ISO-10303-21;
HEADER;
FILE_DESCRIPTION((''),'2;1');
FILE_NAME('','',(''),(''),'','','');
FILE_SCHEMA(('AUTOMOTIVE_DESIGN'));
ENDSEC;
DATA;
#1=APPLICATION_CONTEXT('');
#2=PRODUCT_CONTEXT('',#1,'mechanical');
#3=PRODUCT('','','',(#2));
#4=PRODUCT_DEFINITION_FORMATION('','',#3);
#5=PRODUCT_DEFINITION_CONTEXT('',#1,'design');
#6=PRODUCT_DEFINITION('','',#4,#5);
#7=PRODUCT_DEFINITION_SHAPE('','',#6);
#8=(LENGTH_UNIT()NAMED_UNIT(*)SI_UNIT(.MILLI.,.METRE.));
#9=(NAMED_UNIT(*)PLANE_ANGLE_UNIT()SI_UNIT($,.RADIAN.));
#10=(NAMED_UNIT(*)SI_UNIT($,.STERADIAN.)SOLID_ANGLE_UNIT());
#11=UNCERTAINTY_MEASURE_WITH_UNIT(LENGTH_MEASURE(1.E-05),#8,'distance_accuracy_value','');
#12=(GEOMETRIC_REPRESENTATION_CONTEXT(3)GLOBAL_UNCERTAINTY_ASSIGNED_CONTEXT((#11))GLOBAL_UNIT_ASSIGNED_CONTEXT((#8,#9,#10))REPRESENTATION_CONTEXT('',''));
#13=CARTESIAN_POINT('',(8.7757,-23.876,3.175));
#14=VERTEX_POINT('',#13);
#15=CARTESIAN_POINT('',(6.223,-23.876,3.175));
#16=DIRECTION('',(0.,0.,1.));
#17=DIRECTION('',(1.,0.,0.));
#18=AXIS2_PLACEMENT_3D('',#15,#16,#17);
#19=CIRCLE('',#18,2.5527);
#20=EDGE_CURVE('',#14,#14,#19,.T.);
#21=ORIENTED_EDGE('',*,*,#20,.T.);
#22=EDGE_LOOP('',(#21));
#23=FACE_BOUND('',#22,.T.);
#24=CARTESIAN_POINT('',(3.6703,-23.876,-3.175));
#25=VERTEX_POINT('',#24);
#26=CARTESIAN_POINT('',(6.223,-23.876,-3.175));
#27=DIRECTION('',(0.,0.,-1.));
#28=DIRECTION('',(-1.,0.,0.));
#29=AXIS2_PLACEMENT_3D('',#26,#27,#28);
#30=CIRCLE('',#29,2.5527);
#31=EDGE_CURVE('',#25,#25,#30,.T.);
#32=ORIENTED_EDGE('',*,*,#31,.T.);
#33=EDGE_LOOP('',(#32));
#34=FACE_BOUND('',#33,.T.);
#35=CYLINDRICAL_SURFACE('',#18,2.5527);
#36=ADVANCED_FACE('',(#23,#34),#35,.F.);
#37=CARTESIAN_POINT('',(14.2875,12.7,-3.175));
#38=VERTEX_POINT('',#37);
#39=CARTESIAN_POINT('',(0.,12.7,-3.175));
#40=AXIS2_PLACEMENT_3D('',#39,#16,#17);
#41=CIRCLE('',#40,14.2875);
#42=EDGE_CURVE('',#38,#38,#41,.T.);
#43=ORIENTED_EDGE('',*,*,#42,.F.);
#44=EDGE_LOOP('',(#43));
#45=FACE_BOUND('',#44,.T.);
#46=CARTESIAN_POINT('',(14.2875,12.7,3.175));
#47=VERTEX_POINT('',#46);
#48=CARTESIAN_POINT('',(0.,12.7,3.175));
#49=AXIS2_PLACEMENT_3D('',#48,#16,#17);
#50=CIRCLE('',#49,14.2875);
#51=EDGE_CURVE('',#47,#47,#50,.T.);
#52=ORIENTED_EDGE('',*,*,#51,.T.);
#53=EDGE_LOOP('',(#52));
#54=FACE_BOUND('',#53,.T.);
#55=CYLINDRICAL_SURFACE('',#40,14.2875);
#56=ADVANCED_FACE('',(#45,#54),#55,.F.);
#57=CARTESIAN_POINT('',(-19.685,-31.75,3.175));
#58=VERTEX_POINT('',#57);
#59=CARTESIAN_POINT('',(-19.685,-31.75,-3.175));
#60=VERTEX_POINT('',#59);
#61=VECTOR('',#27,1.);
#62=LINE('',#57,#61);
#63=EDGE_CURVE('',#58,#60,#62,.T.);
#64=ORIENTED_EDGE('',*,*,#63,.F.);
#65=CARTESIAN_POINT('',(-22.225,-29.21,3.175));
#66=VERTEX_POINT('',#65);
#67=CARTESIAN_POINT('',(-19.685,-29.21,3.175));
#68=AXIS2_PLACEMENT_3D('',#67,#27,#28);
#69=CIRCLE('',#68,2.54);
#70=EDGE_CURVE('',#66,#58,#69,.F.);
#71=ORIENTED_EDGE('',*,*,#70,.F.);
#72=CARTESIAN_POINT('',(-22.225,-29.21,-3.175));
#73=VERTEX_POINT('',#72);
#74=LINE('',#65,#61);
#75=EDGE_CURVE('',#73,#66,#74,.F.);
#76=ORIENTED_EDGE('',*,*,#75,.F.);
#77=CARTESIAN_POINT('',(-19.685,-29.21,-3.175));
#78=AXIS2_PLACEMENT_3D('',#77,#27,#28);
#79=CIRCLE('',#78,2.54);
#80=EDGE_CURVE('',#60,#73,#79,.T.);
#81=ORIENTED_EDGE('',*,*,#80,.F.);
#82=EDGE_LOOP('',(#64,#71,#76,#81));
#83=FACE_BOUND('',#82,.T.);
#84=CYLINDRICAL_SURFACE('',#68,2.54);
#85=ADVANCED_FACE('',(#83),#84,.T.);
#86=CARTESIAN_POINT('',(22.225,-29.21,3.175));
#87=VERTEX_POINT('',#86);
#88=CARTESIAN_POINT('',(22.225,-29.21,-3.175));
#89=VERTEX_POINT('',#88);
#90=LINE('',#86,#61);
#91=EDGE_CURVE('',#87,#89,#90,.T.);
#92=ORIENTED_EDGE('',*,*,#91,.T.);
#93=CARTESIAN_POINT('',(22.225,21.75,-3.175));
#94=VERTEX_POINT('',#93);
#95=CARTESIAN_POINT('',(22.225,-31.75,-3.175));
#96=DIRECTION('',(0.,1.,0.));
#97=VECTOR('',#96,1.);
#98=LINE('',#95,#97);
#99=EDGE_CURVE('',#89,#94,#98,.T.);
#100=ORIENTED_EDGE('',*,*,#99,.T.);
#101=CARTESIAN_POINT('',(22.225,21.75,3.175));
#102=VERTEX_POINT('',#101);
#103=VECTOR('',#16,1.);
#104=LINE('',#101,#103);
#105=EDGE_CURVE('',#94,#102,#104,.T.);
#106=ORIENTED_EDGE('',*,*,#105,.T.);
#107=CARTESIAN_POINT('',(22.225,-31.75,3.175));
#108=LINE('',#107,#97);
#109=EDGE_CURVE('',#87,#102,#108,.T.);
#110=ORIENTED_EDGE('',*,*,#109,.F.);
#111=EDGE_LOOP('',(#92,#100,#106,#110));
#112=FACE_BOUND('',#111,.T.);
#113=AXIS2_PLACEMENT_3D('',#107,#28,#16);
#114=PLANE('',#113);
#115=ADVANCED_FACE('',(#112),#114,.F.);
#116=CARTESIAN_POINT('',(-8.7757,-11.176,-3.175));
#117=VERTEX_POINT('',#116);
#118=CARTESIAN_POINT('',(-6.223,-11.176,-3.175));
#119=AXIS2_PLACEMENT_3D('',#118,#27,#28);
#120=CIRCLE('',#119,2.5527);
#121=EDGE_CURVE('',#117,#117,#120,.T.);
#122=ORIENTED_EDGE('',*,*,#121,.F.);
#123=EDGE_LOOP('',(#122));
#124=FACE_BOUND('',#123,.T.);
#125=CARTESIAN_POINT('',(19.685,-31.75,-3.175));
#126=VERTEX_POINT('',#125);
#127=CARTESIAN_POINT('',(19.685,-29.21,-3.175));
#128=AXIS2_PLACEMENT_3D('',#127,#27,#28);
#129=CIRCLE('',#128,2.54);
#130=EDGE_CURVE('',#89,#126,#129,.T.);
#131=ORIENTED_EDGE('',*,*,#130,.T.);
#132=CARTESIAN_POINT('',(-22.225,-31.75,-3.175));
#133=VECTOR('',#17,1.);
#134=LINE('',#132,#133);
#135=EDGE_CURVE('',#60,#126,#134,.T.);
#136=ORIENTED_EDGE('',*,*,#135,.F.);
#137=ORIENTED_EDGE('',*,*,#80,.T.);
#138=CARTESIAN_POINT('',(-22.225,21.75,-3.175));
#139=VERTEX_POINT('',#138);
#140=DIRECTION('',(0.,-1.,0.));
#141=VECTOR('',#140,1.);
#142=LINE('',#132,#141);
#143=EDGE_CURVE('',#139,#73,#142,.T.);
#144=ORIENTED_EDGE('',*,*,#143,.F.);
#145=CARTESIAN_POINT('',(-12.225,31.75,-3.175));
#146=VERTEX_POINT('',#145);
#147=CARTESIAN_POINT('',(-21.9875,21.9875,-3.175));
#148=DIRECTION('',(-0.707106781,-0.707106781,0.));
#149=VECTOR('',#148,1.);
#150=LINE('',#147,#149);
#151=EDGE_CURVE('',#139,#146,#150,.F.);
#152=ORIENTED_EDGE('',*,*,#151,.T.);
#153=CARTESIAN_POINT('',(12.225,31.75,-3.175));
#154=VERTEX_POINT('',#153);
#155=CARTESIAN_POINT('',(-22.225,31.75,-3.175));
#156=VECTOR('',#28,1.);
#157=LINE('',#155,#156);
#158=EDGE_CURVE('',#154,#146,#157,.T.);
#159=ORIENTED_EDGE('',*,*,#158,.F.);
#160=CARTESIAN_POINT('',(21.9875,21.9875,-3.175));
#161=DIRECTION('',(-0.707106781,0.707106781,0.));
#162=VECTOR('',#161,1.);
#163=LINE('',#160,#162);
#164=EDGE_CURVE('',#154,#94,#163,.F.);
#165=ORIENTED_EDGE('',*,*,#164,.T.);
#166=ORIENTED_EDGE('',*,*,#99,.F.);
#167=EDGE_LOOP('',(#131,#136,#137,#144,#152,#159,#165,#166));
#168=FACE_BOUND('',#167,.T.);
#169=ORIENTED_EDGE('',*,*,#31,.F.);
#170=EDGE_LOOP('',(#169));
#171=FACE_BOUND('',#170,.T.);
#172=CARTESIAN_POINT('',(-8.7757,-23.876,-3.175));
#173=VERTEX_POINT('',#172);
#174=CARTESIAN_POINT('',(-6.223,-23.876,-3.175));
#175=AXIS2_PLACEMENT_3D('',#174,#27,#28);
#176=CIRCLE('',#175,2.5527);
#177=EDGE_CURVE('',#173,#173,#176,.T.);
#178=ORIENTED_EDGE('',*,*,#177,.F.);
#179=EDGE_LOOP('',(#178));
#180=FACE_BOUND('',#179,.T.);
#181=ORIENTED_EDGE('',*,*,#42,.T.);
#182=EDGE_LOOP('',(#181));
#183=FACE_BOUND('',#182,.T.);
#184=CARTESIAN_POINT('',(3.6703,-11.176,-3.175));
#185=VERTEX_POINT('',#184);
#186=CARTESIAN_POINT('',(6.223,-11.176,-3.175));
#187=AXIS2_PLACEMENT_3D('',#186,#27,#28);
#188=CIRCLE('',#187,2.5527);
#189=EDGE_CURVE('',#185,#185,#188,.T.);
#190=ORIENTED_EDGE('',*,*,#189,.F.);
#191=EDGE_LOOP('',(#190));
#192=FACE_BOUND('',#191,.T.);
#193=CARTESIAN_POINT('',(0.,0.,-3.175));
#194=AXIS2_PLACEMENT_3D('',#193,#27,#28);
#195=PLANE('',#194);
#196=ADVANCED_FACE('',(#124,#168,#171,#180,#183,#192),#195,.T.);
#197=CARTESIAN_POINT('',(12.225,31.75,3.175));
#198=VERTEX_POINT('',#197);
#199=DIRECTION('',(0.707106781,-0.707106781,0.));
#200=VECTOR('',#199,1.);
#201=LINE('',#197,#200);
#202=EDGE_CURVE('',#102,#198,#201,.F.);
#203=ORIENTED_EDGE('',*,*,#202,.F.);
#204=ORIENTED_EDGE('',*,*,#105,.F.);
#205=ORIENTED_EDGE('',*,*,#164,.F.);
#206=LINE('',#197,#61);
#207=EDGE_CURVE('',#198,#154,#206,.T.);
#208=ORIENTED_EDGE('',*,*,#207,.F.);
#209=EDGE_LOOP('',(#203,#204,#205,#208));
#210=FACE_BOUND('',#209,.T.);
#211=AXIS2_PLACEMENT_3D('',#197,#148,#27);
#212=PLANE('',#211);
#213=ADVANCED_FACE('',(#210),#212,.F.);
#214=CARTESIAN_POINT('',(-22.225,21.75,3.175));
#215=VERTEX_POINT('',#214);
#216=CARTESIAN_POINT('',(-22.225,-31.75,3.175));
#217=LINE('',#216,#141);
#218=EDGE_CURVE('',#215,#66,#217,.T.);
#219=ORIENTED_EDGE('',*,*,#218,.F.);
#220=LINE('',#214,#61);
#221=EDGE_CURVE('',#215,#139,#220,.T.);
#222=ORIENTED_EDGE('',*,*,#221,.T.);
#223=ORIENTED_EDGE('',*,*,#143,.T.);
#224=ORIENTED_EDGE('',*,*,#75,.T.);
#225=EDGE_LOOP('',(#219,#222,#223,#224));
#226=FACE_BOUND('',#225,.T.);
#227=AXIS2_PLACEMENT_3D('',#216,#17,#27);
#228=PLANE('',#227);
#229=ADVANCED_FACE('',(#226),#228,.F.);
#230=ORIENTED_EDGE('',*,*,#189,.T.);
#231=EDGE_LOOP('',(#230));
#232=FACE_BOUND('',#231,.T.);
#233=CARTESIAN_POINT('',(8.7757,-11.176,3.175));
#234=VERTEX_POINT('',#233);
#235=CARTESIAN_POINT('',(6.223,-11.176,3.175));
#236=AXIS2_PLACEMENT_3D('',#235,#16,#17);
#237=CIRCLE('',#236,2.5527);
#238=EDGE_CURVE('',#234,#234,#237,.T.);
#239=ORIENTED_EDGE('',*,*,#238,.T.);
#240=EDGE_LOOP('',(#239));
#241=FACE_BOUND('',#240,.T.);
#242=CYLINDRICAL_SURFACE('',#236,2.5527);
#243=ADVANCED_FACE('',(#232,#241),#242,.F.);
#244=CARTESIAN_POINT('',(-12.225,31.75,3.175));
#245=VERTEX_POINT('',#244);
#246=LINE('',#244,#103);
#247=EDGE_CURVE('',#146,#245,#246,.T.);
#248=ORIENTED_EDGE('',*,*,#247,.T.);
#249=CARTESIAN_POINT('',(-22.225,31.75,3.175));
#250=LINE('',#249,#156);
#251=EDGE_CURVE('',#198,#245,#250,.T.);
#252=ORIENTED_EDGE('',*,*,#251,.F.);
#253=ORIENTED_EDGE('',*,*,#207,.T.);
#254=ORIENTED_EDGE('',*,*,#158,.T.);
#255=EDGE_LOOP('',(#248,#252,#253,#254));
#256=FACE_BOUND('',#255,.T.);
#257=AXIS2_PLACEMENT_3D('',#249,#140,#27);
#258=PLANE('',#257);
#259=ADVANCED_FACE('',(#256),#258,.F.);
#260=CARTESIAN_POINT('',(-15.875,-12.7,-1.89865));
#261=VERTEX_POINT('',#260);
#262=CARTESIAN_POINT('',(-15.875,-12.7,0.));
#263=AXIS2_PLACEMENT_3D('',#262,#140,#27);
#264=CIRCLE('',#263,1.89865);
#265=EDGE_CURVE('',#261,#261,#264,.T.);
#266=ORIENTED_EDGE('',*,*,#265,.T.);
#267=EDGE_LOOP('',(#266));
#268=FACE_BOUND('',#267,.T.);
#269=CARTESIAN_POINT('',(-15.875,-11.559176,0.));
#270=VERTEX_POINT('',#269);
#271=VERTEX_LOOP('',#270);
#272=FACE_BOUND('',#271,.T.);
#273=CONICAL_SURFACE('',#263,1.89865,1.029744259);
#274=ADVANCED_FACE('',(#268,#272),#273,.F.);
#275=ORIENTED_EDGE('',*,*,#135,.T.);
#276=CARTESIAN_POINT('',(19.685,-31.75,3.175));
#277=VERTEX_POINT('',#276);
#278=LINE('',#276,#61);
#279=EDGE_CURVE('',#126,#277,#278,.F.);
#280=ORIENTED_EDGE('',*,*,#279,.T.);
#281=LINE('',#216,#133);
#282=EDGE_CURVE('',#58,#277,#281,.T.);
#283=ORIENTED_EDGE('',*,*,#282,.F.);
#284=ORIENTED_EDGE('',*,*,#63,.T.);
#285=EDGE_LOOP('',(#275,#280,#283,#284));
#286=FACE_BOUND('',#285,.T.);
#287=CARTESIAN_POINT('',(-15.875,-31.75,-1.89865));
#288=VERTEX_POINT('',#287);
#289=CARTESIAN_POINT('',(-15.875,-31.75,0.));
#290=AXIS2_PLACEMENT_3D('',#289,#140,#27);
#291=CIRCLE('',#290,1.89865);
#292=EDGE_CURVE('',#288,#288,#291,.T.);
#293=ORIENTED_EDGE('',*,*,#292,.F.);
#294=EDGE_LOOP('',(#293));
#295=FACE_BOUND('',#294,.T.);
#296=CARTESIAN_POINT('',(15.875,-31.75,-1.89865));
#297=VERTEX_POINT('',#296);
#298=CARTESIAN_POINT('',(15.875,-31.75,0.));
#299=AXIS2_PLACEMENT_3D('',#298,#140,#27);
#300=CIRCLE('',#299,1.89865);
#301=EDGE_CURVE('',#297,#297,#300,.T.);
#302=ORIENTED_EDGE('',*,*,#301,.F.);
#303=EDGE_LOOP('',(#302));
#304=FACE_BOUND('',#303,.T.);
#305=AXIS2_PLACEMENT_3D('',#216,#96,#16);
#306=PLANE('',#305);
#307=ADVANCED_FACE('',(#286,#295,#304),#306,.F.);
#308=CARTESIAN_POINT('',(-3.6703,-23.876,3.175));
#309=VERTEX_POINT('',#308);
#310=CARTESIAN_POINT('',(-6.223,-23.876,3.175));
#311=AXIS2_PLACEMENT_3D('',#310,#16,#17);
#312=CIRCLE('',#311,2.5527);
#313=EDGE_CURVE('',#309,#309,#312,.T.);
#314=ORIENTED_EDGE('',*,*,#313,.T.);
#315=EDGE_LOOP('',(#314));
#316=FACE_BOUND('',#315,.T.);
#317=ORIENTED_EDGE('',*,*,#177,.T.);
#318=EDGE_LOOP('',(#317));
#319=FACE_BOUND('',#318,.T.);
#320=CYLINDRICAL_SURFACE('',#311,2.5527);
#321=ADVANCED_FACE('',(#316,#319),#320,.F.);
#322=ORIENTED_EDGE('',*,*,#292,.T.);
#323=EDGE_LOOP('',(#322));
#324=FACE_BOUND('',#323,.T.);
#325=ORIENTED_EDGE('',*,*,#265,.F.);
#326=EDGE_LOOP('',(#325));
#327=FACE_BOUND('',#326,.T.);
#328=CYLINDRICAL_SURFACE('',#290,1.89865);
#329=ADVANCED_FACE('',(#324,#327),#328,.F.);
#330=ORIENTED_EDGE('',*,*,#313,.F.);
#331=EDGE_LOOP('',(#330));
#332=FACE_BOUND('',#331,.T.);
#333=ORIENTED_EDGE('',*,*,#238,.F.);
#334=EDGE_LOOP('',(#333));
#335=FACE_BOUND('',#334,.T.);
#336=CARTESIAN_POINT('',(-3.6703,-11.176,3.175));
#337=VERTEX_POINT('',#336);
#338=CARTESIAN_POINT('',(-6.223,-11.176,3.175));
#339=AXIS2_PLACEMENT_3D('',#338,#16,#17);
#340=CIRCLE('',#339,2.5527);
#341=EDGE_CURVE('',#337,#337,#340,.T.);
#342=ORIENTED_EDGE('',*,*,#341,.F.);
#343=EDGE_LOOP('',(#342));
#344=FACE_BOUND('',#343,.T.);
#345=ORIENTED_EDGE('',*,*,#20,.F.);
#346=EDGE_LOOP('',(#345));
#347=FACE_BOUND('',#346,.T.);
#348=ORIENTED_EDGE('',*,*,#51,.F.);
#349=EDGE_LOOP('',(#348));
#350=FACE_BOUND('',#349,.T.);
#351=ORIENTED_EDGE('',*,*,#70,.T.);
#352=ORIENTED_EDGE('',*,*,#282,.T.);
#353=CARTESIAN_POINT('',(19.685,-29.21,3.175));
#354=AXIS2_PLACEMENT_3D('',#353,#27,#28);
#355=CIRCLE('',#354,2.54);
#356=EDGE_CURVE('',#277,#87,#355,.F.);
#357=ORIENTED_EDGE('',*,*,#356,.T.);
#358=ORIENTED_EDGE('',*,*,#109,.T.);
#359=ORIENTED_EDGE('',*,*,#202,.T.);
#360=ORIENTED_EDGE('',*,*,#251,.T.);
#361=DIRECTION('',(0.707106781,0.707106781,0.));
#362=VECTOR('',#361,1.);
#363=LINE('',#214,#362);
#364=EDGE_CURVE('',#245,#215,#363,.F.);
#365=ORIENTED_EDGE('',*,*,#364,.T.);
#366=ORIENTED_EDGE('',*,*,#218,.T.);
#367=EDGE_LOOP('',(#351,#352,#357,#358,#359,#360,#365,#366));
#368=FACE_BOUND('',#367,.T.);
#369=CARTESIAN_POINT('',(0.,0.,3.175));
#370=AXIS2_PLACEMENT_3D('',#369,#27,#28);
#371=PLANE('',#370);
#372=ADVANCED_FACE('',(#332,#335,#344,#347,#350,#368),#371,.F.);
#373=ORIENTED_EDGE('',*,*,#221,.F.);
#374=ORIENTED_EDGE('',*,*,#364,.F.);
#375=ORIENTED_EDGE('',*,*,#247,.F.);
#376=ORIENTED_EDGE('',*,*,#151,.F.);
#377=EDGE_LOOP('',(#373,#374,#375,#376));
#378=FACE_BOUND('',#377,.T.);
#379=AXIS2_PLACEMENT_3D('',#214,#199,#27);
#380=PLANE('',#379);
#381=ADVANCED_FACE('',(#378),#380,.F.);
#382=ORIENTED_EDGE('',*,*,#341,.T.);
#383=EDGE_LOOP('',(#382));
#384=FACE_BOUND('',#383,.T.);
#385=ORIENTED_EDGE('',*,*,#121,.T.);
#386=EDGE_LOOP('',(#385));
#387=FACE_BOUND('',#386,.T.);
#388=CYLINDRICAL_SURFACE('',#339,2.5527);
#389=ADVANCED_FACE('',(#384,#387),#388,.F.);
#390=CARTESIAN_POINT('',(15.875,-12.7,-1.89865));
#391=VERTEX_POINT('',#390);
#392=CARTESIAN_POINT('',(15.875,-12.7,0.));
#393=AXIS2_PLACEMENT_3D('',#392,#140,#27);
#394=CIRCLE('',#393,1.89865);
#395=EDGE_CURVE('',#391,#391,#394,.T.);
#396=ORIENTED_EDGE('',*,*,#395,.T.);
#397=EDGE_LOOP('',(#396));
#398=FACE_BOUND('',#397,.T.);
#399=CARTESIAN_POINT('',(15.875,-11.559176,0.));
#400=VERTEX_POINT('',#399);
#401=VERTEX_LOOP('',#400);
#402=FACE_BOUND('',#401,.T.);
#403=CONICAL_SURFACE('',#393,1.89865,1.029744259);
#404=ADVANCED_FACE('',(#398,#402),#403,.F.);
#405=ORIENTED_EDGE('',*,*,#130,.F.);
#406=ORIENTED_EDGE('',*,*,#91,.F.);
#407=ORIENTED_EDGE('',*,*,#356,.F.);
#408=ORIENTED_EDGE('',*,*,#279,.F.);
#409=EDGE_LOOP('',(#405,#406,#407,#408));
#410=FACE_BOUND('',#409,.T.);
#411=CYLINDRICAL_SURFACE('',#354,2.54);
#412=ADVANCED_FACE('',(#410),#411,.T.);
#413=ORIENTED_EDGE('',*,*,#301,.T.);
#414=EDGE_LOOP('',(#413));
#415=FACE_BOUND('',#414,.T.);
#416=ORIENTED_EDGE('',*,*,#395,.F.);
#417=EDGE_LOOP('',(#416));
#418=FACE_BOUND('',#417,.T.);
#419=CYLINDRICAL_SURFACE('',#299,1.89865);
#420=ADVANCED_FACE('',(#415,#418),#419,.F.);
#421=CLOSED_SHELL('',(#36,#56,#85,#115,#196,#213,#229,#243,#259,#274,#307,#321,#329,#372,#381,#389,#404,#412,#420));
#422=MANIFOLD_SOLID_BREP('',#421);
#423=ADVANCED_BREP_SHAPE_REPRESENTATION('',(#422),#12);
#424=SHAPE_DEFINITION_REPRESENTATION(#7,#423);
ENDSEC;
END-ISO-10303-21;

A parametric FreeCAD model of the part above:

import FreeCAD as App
import Part
import Sketcher
from FreeCAD import Vector
Q = App.Units.Quantity


def edges_at(feature, points):
    """Names of the edges that pass closest to the given points."""
    edges = feature.Shape.Edges
    near = lambda p: min(range(len(edges)), key=lambda i: edges[i].distToShape(Part.Vertex(*p))[0])
    return sorted({f"Edge{near(p) + 1}" for p in points})


def add_polygon(sketch, points):
    """Adds a closed chain of lines whose ends are joined by coincident constraints."""
    first, n = sketch.GeometryCount, len(points)
    for a, b in zip(points, points[1:] + points[:1]):
        sketch.addGeometry(Part.LineSegment(App.Vector(*a, 0), App.Vector(*b, 0)), False)
    for i in range(n):
        sketch.addConstraint(Sketcher.Constraint("Coincident", first + i, 2, first + (i + 1) % n, 1))

doc = App.newDocument("Part")
params = doc.addObject("Spreadsheet::Sheet", "Params")
for row, (alias, value) in enumerate([
    ("sketch1_height", "2.5 in"),
    ("sketch1_width", "1.75 in"),
    ("pad1_length", "0.25 in"),
    ("chamfer_size", "10 mm"),
    ("sketch2_diameter", "1.125 in"),
    ("hole_diameter", "0.1495 in"),
    ("hole_depth", "0.75 in"),
    ("sketch4_diameter", "0.201 in"),
    ("hole2_diameter", "0.201 in"),
    ("hole2_depth", "0.5 in"),
    ("fillet_radius", "0.1 in"),
], start=1):
    params.set(f"A{row}", alias)
    params.set(f"B{row}", "=" + value)
    params.setAlias(f"B{row}", alias)

body = doc.addObject("PartDesign::Body", "Body")

sketch1 = doc.addObject("Sketcher::SketchObject", "Sketch")
body.addObject(sketch1)
sketch1.AttachmentSupport = (doc.XY_Plane, [""])
sketch1.MapMode = "FlatFace"
add_polygon(sketch1, [(-22.225, 31.75), (-22.225, -31.75), (22.225, -31.75), (22.225, 31.75)])
sketch1.addConstraint(Sketcher.Constraint("Vertical", 0))
sketch1.addConstraint(Sketcher.Constraint("Horizontal", 1))
sketch1.addConstraint(Sketcher.Constraint("Vertical", 2))
sketch1.addConstraint(Sketcher.Constraint("Horizontal", 3))
sketch1.addConstraint(Sketcher.Constraint("Symmetric", 0, 2, 2, 2, -1, 1))
sketch1.addConstraint(Sketcher.Constraint("DistanceY", 0, 2, 0, 1, Q("2.5 in")))
sketch1.addConstraint(Sketcher.Constraint("DistanceX", 1, 1, 1, 2, Q("1.75 in")))
sketch1.setExpression("Constraints[9]", "Params.sketch1_height")
sketch1.setExpression("Constraints[10]", "Params.sketch1_width")
pad1 = doc.addObject("PartDesign::Pad", "Pad")
body.addObject(pad1)
pad1.Profile = sketch1
pad1.setExpression("Length", "Params.pad1_length")
pad1.Midplane = True
doc.recompute()

chamfer = doc.addObject("PartDesign::Chamfer", "Chamfer")
body.addObject(chamfer)
chamfer.Base = (pad1, edges_at(pad1, [(-22.225, 31.75, 0), (22.225, 31.75, 0)]))
chamfer.setExpression("Size", "Params.chamfer_size")

sketch2 = doc.addObject("Sketcher::SketchObject", "Sketch001")
body.addObject(sketch2)
sketch2.AttachmentSupport = (doc.XY_Plane, [""])
sketch2.MapMode = "FlatFace"
sketch2.AttachmentOffset = App.Placement(Vector(0, 0, 0.125 * 25.4), App.Rotation())
sketch2.addGeometry(Part.Circle(Vector(0, 12.7, 0), Vector(0, 0, 1), 14.2875), False)
sketch2.addConstraint(Sketcher.Constraint("PointOnObject", 0, 3, -2))
sketch2.addConstraint(Sketcher.Constraint("Diameter", 0, Q("1.125 in")))
sketch2.addConstraint(Sketcher.Constraint("DistanceY", -1, 1, 0, 3, Q("0.5 in")))
sketch2.setExpression("Constraints[1]", "Params.sketch2_diameter")
pocket1 = doc.addObject("PartDesign::Pocket", "Pocket")
body.addObject(pocket1)
pocket1.Profile = sketch2
pocket1.Type = "ThroughAll"

sketch3 = doc.addObject("Sketcher::SketchObject", "Sketch002")
body.addObject(sketch3)
sketch3.AttachmentSupport = (doc.XZ_Plane, [""])
sketch3.MapMode = "FlatFace"
sketch3.AttachmentOffset = App.Placement(Vector(0, 0, 1.25 * 25.4), App.Rotation())
sketch3.addGeometry(Part.Circle(Vector(-15.875, 0, 0), Vector(0, 0, 1), 1.89865), False)
sketch3.addGeometry(Part.Circle(Vector(15.875, 0, 0), Vector(0, 0, 1), 1.89865), False)
sketch3.addConstraint(Sketcher.Constraint("Equal", 0, 1))
sketch3.addConstraint(Sketcher.Constraint("Symmetric", 0, 3, 1, 3, -1, 1))
sketch3.addConstraint(Sketcher.Constraint("PointOnObject", 0, 3, -1))
sketch3.addConstraint(Sketcher.Constraint("Diameter", 0, Q("0.1495 in")))
sketch3.addConstraint(Sketcher.Constraint("DistanceX", 0, 3, 1, 3, Q("1.25 in")))
doc.recompute()
hole = doc.addObject("PartDesign::Hole", "Hole")
body.addObject(hole)
hole.Profile = sketch3
hole.ThreadType = "None"
hole.setExpression("Diameter", "Params.hole_diameter")
hole.DepthType = "Dimension"
hole.setExpression("Depth", "Params.hole_depth")
hole.DrillPoint = "Angled"
hole.DrillPointAngle = 118

sketch4 = doc.addObject("Sketcher::SketchObject", "Sketch003")
body.addObject(sketch4)
sketch4.AttachmentSupport = (doc.XY_Plane, [""])
sketch4.MapMode = "FlatFace"
sketch4.AttachmentOffset = App.Placement(Vector(0, 0, 0.125 * 25.4), App.Rotation())
sketch4.addGeometry(Part.Circle(Vector(-6.223, -11.176, 0), Vector(0, 0, 1), 2.5527), False)
sketch4.addGeometry(Part.Circle(Vector(6.223, -11.176, 0), Vector(0, 0, 1), 2.5527), False)
sketch4.addGeometry(Part.Circle(Vector(6.223, -23.876, 0), Vector(0, 0, 1), 2.5527), False)
sketch4.addGeometry(Part.Circle(Vector(-6.223, -23.876, 0), Vector(0, 0, 1), 2.5527), False)
sketch4.addConstraint(Sketcher.Constraint("Equal", 0, 1))
sketch4.addConstraint(Sketcher.Constraint("Equal", 1, 2))
sketch4.addConstraint(Sketcher.Constraint("Equal", 2, 3))
sketch4.addConstraint(Sketcher.Constraint("Symmetric", 0, 3, 1, 3, -2))
sketch4.addConstraint(Sketcher.Constraint("Symmetric", 2, 3, 3, 3, -2))
sketch4.addConstraint(Sketcher.Constraint("Vertical", 1, 3, 2, 3))
sketch4.addConstraint(Sketcher.Constraint("Diameter", 0, Q("0.201 in")))
sketch4.addConstraint(Sketcher.Constraint("DistanceY", 2, 3, 1, 3, Q("0.5 in")))
sketch4.addConstraint(Sketcher.Constraint("DistanceY", 0, 3, -1, 1, Q("0.44 in")))
sketch4.addConstraint(Sketcher.Constraint("DistanceX", 0, 3, 1, 3, Q("0.49 in")))
sketch4.setExpression("Constraints[6]", "Params.sketch4_diameter")
doc.recompute()
hole2 = doc.addObject("PartDesign::Hole", "Hole001")
body.addObject(hole2)
hole2.Profile = sketch4
hole2.ThreadType = "None"
hole2.setExpression("Diameter", "Params.hole2_diameter")
hole2.DepthType = "Dimension"
hole2.setExpression("Depth", "Params.hole2_depth")
hole2.DrillPoint = "Angled"
hole2.DrillPointAngle = 118
doc.recompute()

fillet = doc.addObject("PartDesign::Fillet", "Fillet")
body.addObject(fillet)
fillet.Base = (hole2, edges_at(hole2, [(22.225, -31.75, 0), (-22.225, -31.75, 0)]))
fillet.setExpression("Radius", "Params.fillet_radius")

doc.recompute()
